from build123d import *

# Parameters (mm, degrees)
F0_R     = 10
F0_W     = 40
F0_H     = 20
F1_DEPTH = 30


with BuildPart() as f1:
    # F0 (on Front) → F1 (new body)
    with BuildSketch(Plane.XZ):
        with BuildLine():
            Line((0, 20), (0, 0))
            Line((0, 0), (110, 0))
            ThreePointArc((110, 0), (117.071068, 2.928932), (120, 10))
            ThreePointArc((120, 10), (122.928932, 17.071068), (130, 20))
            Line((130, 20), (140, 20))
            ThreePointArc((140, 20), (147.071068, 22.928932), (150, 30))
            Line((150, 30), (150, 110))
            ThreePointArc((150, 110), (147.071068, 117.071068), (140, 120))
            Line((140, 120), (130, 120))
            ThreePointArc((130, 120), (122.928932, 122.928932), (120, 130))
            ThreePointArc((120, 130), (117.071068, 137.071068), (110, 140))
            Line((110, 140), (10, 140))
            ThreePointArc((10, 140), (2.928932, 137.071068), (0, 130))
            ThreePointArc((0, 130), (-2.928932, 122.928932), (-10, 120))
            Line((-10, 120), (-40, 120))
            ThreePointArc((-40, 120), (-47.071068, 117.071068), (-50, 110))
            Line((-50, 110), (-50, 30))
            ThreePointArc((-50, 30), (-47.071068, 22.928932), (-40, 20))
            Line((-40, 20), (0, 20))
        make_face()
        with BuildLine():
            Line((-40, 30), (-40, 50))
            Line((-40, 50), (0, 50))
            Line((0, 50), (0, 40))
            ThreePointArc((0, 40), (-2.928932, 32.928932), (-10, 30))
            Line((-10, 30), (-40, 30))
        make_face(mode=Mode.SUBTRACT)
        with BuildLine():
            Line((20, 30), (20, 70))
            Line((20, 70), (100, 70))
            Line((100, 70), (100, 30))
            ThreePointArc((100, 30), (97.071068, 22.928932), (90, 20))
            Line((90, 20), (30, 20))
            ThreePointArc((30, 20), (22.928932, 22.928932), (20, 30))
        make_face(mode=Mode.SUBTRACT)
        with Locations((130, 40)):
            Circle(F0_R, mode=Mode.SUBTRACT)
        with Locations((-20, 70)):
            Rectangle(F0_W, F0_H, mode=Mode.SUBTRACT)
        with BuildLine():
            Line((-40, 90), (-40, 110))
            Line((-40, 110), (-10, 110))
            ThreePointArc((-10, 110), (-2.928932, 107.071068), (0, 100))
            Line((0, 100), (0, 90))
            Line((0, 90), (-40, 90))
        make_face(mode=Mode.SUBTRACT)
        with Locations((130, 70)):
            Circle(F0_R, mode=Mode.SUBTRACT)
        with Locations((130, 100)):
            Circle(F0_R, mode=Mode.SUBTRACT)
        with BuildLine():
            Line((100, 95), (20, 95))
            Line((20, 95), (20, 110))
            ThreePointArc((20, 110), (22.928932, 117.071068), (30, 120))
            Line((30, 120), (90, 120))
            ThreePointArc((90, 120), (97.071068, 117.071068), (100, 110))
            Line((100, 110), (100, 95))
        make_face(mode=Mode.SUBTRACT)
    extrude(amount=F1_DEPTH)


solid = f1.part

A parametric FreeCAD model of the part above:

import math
import FreeCAD as App
import Part
import Sketcher
from FreeCAD import Vector

doc = App.newDocument("Part")
body = doc.addObject("PartDesign::Body", "Body")

# Sketch on XZ plane
sketch1 = body.newObject("Sketcher::SketchObject", "Sketch")
sketch1.AttachmentSupport = (doc.getObject("XZ_Plane"), [""])
sketch1.MapMode = "FlatFace"
sketch1.addGeometry(Part.LineSegment(Vector(0, 20, 0), Vector(0, 0, 0)), False)
sketch1.addGeometry(Part.LineSegment(Vector(0, 0, 0), Vector(110, 0, 0)), False)
sketch1.addGeometry(Part.ArcOfCircle(Part.Circle(Vector(110.000001, 9.999999, 0), Vector(0, 0, 1), 9.999999), math.radians(-90.000004), math.radians(0.000004)), False)
sketch1.addGeometry(Part.ArcOfCircle(Part.Circle(Vector(129.999999, 10.000001, 0), Vector(0, 0, 1), 9.999999), math.radians(89.999996), math.radians(180.000004)), False)
sketch1.addGeometry(Part.LineSegment(Vector(130, 20, 0), Vector(140, 20, 0)), False)
sketch1.addGeometry(Part.ArcOfCircle(Part.Circle(Vector(140.000001, 29.999999, 0), Vector(0, 0, 1), 9.999999), math.radians(-90.000004), math.radians(0.000004)), False)
sketch1.addGeometry(Part.LineSegment(Vector(150, 30, 0), Vector(150, 110, 0)), False)
sketch1.addGeometry(Part.ArcOfCircle(Part.Circle(Vector(140.000001, 110.000001, 0), Vector(0, 0, 1), 9.999999), math.radians(-0.000004), math.radians(90.000004)), False)
sketch1.addGeometry(Part.LineSegment(Vector(140, 120, 0), Vector(130, 120, 0)), False)
sketch1.addGeometry(Part.ArcOfCircle(Part.Circle(Vector(129.999999, 129.999999, 0), Vector(0, 0, 1), 9.999999), math.radians(179.999996), math.radians(270.000004)), False)
sketch1.addGeometry(Part.ArcOfCircle(Part.Circle(Vector(110.000001, 130.000001, 0), Vector(0, 0, 1), 9.999999), math.radians(-0.000004), math.radians(90.000004)), False)
sketch1.addGeometry(Part.LineSegment(Vector(110, 140, 0), Vector(10, 140, 0)), False)
sketch1.addGeometry(Part.ArcOfCircle(Part.Circle(Vector(9.999999, 130.000001, 0), Vector(0, 0, 1), 9.999999), math.radians(89.999996), math.radians(180.000004)), False)
sketch1.addGeometry(Part.ArcOfCircle(Part.Circle(Vector(-9.999999, 129.999999, 0), Vector(0, 0, 1), 9.999999), math.radians(-90.000004), math.radians(0.000004)), False)
sketch1.addGeometry(Part.LineSegment(Vector(-10, 120, 0), Vector(-40, 120, 0)), False)
sketch1.addGeometry(Part.ArcOfCircle(Part.Circle(Vector(-40.000001, 110.000001, 0), Vector(0, 0, 1), 9.999999), math.radians(89.999996), math.radians(180.000004)), False)
sketch1.addGeometry(Part.LineSegment(Vector(-50, 110, 0), Vector(-50, 30, 0)), False)
sketch1.addGeometry(Part.ArcOfCircle(Part.Circle(Vector(-40.000001, 29.999999, 0), Vector(0, 0, 1), 9.999999), math.radians(179.999996), math.radians(270.000004)), False)
sketch1.addGeometry(Part.LineSegment(Vector(-40, 20, 0), Vector(0, 20, 0)), False)
sketch1.addGeometry(Part.LineSegment(Vector(-10, 30, 0), Vector(-40, 30, 0)), False)
sketch1.addGeometry(Part.LineSegment(Vector(-40, 30, 0), Vector(-40, 50, 0)), False)
sketch1.addGeometry(Part.LineSegment(Vector(-40, 50, 0), Vector(0, 50, 0)), False)
sketch1.addGeometry(Part.LineSegment(Vector(0, 50, 0), Vector(0, 40, 0)), False)
sketch1.addGeometry(Part.ArcOfCircle(Part.Circle(Vector(-9.999999, 39.999999, 0), Vector(0, 0, 1), 9.999999), math.radians(-90.000004), math.radians(0.000004)), False)
sketch1.addGeometry(Part.LineSegment(Vector(0, 60, 0), Vector(-40, 60, 0)), False)
sketch1.addGeometry(Part.LineSegment(Vector(-40, 60, 0), Vector(-40, 80, 0)), False)
sketch1.addGeometry(Part.LineSegment(Vector(-40, 80, 0), Vector(0, 80, 0)), False)
sketch1.addGeometry(Part.LineSegment(Vector(0, 80, 0), Vector(0, 60, 0)), False)
sketch1.addGeometry(Part.ArcOfCircle(Part.Circle(Vector(29.999999, 29.999999, 0), Vector(0, 0, 1), 9.999999), math.radians(179.999996), math.radians(270.000004)), False)
sketch1.addGeometry(Part.LineSegment(Vector(20, 30, 0), Vector(20, 70, 0)), False)
sketch1.addGeometry(Part.LineSegment(Vector(20, 70, 0), Vector(100, 70, 0)), False)
sketch1.addGeometry(Part.LineSegment(Vector(100, 70, 0), Vector(100, 30, 0)), False)
sketch1.addGeometry(Part.ArcOfCircle(Part.Circle(Vector(90.000001, 29.999999, 0), Vector(0, 0, 1), 9.999999), math.radians(-90.000004), math.radians(0.000004)), False)
sketch1.addGeometry(Part.LineSegment(Vector(90, 20, 0), Vector(30, 20, 0)), False)
sketch1.addGeometry(Part.Circle(Vector(130, 40, 0), Vector(0, 0, 1), 10), False)
sketch1.addGeometry(Part.Circle(Vector(130, 70, 0), Vector(0, 0, 1), 10), False)
sketch1.addGeometry(Part.LineSegment(Vector(0, 90, 0), Vector(-40, 90, 0)), False)
sketch1.addGeometry(Part.LineSegment(Vector(-40, 90, 0), Vector(-40, 110, 0)), False)
sketch1.addGeometry(Part.LineSegment(Vector(-40, 110, 0), Vector(-10, 110, 0)), False)
sketch1.addGeometry(Part.ArcOfCircle(Part.Circle(Vector(-9.999999, 100.000001, 0), Vector(0, 0, 1), 9.999999), math.radians(-0.000004), math.radians(90.000004)), False)
sketch1.addGeometry(Part.LineSegment(Vector(0, 100, 0), Vector(0, 90, 0)), False)
sketch1.addGeometry(Part.LineSegment(Vector(100, 110, 0), Vector(100, 95, 0)), False)
sketch1.addGeometry(Part.LineSegment(Vector(100, 95, 0), Vector(20, 95, 0)), False)
sketch1.addGeometry(Part.LineSegment(Vector(20, 95, 0), Vector(20, 110, 0)), False)
sketch1.addGeometry(Part.ArcOfCircle(Part.Circle(Vector(29.999999, 110.000001, 0), Vector(0, 0, 1), 9.999999), math.radians(89.999996), math.radians(180.000004)), False)
sketch1.addGeometry(Part.LineSegment(Vector(30, 120, 0), Vector(90, 120, 0)), False)
sketch1.addGeometry(Part.ArcOfCircle(Part.Circle(Vector(90.000001, 110.000001, 0), Vector(0, 0, 1), 9.999999), math.radians(-0.000004), math.radians(90.000004)), False)
sketch1.addGeometry(Part.Circle(Vector(130, 100, 0), Vector(0, 0, 1), 10), False)
sketch1.addConstraint(Sketcher.Constraint("Coincident", 0, 2, 1, 1))
sketch1.addConstraint(Sketcher.Constraint("Tangent", 1, 2, 2, 1))
sketch1.addConstraint(Sketcher.Constraint("Tangent", 2, 2, 3, 2))
sketch1.addConstraint(Sketcher.Constraint("Tangent", 3, 1, 4, 1))
sketch1.addConstraint(Sketcher.Constraint("Tangent", 4, 2, 5, 1))
sketch1.addConstraint(Sketcher.Constraint("Tangent", 5, 2, 6, 1))
sketch1.addConstraint(Sketcher.Constraint("Tangent", 6, 2, 7, 1))
sketch1.addConstraint(Sketcher.Constraint("Tangent", 7, 2, 8, 1))
sketch1.addConstraint(Sketcher.Constraint("Tangent", 8, 2, 9, 2))
sketch1.addConstraint(Sketcher.Constraint("Tangent", 9, 1, 10, 1))
sketch1.addConstraint(Sketcher.Constraint("Tangent", 10, 2, 11, 1))
sketch1.addConstraint(Sketcher.Constraint("Tangent", 11, 2, 12, 1))
sketch1.addConstraint(Sketcher.Constraint("Tangent", 12, 2, 13, 2))
sketch1.addConstraint(Sketcher.Constraint("Tangent", 13, 1, 14, 1))
sketch1.addConstraint(Sketcher.Constraint("Tangent", 14, 2, 15, 1))
sketch1.addConstraint(Sketcher.Constraint("Tangent", 15, 2, 16, 1))
sketch1.addConstraint(Sketcher.Constraint("Tangent", 16, 2, 17, 1))
sketch1.addConstraint(Sketcher.Constraint("Tangent", 17, 2, 18, 1))
sketch1.addConstraint(Sketcher.Constraint("Coincident", 18, 2, 0, 1))
sketch1.addConstraint(Sketcher.Constraint("Coincident", 19, 2, 20, 1))
sketch1.addConstraint(Sketcher.Constraint("Coincident", 20, 2, 21, 1))
sketch1.addConstraint(Sketcher.Constraint("Coincident", 21, 2, 22, 1))
sketch1.addConstraint(Sketcher.Constraint("Tangent", 22, 2, 23, 2))
sketch1.addConstraint(Sketcher.Constraint("Tangent", 23, 1, 19, 1))
sketch1.addConstraint(Sketcher.Constraint("Coincident", 24, 2, 25, 1))
sketch1.addConstraint(Sketcher.Constraint("Coincident", 25, 2, 26, 1))
sketch1.addConstraint(Sketcher.Constraint("Coincident", 26, 2, 27, 1))
sketch1.addConstraint(Sketcher.Constraint("Coincident", 27, 2, 24, 1))
sketch1.addConstraint(Sketcher.Constraint("Tangent", 28, 1, 29, 1))
sketch1.addConstraint(Sketcher.Constraint("Coincident", 29, 2, 30, 1))
sketch1.addConstraint(Sketcher.Constraint("Coincident", 30, 2, 31, 1))
sketch1.addConstraint(Sketcher.Constraint("Tangent", 31, 2, 32, 2))
sketch1.addConstraint(Sketcher.Constraint("Tangent", 32, 1, 33, 1))
sketch1.addConstraint(Sketcher.Constraint("Tangent", 33, 2, 28, 2))
sketch1.addConstraint(Sketcher.Constraint("Coincident", 36, 2, 37, 1))
sketch1.addConstraint(Sketcher.Constraint("Coincident", 37, 2, 38, 1))
sketch1.addConstraint(Sketcher.Constraint("Tangent", 38, 2, 39, 2))
sketch1.addConstraint(Sketcher.Constraint("Tangent", 39, 1, 40, 1))
sketch1.addConstraint(Sketcher.Constraint("Coincident", 40, 2, 36, 1))
sketch1.addConstraint(Sketcher.Constraint("Coincident", 41, 2, 42, 1))
sketch1.addConstraint(Sketcher.Constraint("Coincident", 42, 2, 43, 1))
sketch1.addConstraint(Sketcher.Constraint("Tangent", 43, 2, 44, 2))
sketch1.addConstraint(Sketcher.Constraint("Tangent", 44, 1, 45, 1))
sketch1.addConstraint(Sketcher.Constraint("Tangent", 45, 2, 46, 2))
sketch1.addConstraint(Sketcher.Constraint("Tangent", 46, 1, 41, 1))
sketch1.addConstraint(Sketcher.Constraint("Vertical", 0))
sketch1.addConstraint(Sketcher.Constraint("Horizontal", 1))
sketch1.addConstraint(Sketcher.Constraint("Horizontal", 4))
sketch1.addConstraint(Sketcher.Constraint("Vertical", 6))
sketch1.addConstraint(Sketcher.Constraint("Horizontal", 8))
sketch1.addConstraint(Sketcher.Constraint("Horizontal", 11))
sketch1.addConstraint(Sketcher.Constraint("Horizontal", 14))
sketch1.addConstraint(Sketcher.Constraint("Vertical", 16))
sketch1.addConstraint(Sketcher.Constraint("Horizontal", 18))
sketch1.addConstraint(Sketcher.Constraint("Horizontal", 19))
sketch1.addConstraint(Sketcher.Constraint("Vertical", 20))
sketch1.addConstraint(Sketcher.Constraint("Horizontal", 21))
sketch1.addConstraint(Sketcher.Constraint("Vertical", 22))
sketch1.addConstraint(Sketcher.Constraint("Horizontal", 24))
sketch1.addConstraint(Sketcher.Constraint("Vertical", 25))
sketch1.addConstraint(Sketcher.Constraint("Horizontal", 26))
sketch1.addConstraint(Sketcher.Constraint("Vertical", 27))
sketch1.addConstraint(Sketcher.Constraint("Vertical", 29))
sketch1.addConstraint(Sketcher.Constraint("Horizontal", 30))
sketch1.addConstraint(Sketcher.Constraint("Vertical", 31))
sketch1.addConstraint(Sketcher.Constraint("Horizontal", 33))
sketch1.addConstraint(Sketcher.Constraint("Horizontal", 36))
sketch1.addConstraint(Sketcher.Constraint("Vertical", 37))
sketch1.addConstraint(Sketcher.Constraint("Horizontal", 38))
sketch1.addConstraint(Sketcher.Constraint("Vertical", 40))
sketch1.addConstraint(Sketcher.Constraint("Vertical", 41))
sketch1.addConstraint(Sketcher.Constraint("Horizontal", 42))
sketch1.addConstraint(Sketcher.Constraint("Vertical", 43))
sketch1.addConstraint(Sketcher.Constraint("Horizontal", 45))
sketch1.addConstraint(Sketcher.Constraint("Coincident", 0, 2, -1, 1))
sketch1.addConstraint(Sketcher.Constraint("Coincident", 19, 2, 17, 3))
sketch1.addConstraint(Sketcher.Constraint("Coincident", 37, 2, 15, 3))
sketch1.addConstraint(Sketcher.Constraint("Equal", 2, 3))
sketch1.addConstraint(Sketcher.Constraint("Equal", 3, 5))
sketch1.addConstraint(Sketcher.Constraint("Equal", 5, 7))
sketch1.addConstraint(Sketcher.Constraint("Equal", 7, 9))
sketch1.addConstraint(Sketcher.Constraint("Equal", 9, 10))
sketch1.addConstraint(Sketcher.Constraint("Equal", 10, 12))
sketch1.addConstraint(Sketcher.Constraint("Equal", 12, 13))
sketch1.addConstraint(Sketcher.Constraint("Equal", 13, 15))
sketch1.addConstraint(Sketcher.Constraint("Equal", 15, 17))
sketch1.addConstraint(Sketcher.Constraint("Equal", 17, 23))
sketch1.addConstraint(Sketcher.Constraint("Equal", 23, 28))
sketch1.addConstraint(Sketcher.Constraint("Equal", 28, 32))
sketch1.addConstraint(Sketcher.Constraint("Equal", 32, 34))
sketch1.addConstraint(Sketcher.Constraint("Equal", 34, 35))
sketch1.addConstraint(Sketcher.Constraint("Equal", 35, 39))
sketch1.addConstraint(Sketcher.Constraint("Equal", 39, 44))
sketch1.addConstraint(Sketcher.Constraint("Equal", 44, 46))
sketch1.addConstraint(Sketcher.Constraint("Equal", 46, 47))
sketch1.addConstraint(Sketcher.Constraint("Symmetric", 12, 3, 13, 3, -2))
sketch1.addConstraint(Sketcher.Constraint("PointOnObject", 21, 2, -2))
sketch1.addConstraint(Sketcher.Constraint("PointOnObject", 26, 2, -2))
sketch1.addConstraint(Sketcher.Constraint("PointOnObject", 39, 1, -2))
sketch1.addConstraint(Sketcher.Constraint("Horizontal", 2, 3, 3, 3))
sketch1.addConstraint(Sketcher.Constraint("Horizontal", 9, 3, 10, 3))
sketch1.addConstraint(Sketcher.Constraint("Horizontal", 5, 3, 17, 3))
sketch1.addConstraint(Sketcher.Constraint("Horizontal", 17, 3, 28, 3))
sketch1.addConstraint(Sketcher.Constraint("Horizontal", 23, 3, 34, 3))
sketch1.addConstraint(Sketcher.Constraint("Horizontal", 15, 3, 44, 3))
sketch1.addConstraint(Sketcher.Constraint("Horizontal", 39, 3, 47, 3))
sketch1.addConstraint(Sketcher.Constraint("Horizontal", 35, 3, 29, 2))
sketch1.addConstraint(Sketcher.Constraint("Vertical", 3, 3, 9, 3))
sketch1.addConstraint(Sketcher.Constraint("Vertical", 9, 3, 34, 3))
sketch1.addConstraint(Sketcher.Constraint("Vertical", 34, 3, 35, 3))
sketch1.addConstraint(Sketcher.Constraint("Vertical", 28, 3, 44, 3))
sketch1.addConstraint(Sketcher.Constraint("Vertical", 32, 3, 46, 3))
sketch1.addConstraint(Sketcher.Constraint("Vertical", 35, 3, 47, 3))
sketch1.addConstraint(Sketcher.Constraint("Vertical", 20, 2, 24, 2))
sketch1.addConstraint(Sketcher.Constraint("Equal", 42, 6))
sketch1.addConstraint(Sketcher.Constraint("Equal", 0, 20))
sketch1.addConstraint(Sketcher.Constraint("Equal", 8, 22))
sketch1.addConstraint(Sketcher.Constraint("Equal", 20, 25))
sketch1.addConstraint(Sketcher.Constraint("Equal", 36, 29))
sketch1.addConstraint(Sketcher.Constraint("Equal", 27, 37))
sketch1.addConstraint(Sketcher.Constraint("Diameter", 34, 20.0))
sketch1.addConstraint(Sketcher.Constraint("DistanceX", 1, 1, 1, 2, 110.0))
sketch1.addConstraint(Sketcher.Constraint("DistanceX", 14, 2, 14, 1, 30.0))
sketch1.addConstraint(Sketcher.Constraint("DistanceX", 30, 1, 30, 2, 80.0))
sketch1.addConstraint(Sketcher.Constraint("DistanceY", 41, 2, 41, 1, 15.0))
sketch1.addConstraint(Sketcher.Constraint("DistanceX", -1, 1, 28, 3, 29.999999))
sketch1.addConstraint(Sketcher.Constraint("DistanceY", -1, 1, 24, 2, 60.0))
pad1 = body.newObject("PartDesign::Pad", "Pad")
pad1.Profile = sketch1
pad1.Length = 30

doc.recompute()
